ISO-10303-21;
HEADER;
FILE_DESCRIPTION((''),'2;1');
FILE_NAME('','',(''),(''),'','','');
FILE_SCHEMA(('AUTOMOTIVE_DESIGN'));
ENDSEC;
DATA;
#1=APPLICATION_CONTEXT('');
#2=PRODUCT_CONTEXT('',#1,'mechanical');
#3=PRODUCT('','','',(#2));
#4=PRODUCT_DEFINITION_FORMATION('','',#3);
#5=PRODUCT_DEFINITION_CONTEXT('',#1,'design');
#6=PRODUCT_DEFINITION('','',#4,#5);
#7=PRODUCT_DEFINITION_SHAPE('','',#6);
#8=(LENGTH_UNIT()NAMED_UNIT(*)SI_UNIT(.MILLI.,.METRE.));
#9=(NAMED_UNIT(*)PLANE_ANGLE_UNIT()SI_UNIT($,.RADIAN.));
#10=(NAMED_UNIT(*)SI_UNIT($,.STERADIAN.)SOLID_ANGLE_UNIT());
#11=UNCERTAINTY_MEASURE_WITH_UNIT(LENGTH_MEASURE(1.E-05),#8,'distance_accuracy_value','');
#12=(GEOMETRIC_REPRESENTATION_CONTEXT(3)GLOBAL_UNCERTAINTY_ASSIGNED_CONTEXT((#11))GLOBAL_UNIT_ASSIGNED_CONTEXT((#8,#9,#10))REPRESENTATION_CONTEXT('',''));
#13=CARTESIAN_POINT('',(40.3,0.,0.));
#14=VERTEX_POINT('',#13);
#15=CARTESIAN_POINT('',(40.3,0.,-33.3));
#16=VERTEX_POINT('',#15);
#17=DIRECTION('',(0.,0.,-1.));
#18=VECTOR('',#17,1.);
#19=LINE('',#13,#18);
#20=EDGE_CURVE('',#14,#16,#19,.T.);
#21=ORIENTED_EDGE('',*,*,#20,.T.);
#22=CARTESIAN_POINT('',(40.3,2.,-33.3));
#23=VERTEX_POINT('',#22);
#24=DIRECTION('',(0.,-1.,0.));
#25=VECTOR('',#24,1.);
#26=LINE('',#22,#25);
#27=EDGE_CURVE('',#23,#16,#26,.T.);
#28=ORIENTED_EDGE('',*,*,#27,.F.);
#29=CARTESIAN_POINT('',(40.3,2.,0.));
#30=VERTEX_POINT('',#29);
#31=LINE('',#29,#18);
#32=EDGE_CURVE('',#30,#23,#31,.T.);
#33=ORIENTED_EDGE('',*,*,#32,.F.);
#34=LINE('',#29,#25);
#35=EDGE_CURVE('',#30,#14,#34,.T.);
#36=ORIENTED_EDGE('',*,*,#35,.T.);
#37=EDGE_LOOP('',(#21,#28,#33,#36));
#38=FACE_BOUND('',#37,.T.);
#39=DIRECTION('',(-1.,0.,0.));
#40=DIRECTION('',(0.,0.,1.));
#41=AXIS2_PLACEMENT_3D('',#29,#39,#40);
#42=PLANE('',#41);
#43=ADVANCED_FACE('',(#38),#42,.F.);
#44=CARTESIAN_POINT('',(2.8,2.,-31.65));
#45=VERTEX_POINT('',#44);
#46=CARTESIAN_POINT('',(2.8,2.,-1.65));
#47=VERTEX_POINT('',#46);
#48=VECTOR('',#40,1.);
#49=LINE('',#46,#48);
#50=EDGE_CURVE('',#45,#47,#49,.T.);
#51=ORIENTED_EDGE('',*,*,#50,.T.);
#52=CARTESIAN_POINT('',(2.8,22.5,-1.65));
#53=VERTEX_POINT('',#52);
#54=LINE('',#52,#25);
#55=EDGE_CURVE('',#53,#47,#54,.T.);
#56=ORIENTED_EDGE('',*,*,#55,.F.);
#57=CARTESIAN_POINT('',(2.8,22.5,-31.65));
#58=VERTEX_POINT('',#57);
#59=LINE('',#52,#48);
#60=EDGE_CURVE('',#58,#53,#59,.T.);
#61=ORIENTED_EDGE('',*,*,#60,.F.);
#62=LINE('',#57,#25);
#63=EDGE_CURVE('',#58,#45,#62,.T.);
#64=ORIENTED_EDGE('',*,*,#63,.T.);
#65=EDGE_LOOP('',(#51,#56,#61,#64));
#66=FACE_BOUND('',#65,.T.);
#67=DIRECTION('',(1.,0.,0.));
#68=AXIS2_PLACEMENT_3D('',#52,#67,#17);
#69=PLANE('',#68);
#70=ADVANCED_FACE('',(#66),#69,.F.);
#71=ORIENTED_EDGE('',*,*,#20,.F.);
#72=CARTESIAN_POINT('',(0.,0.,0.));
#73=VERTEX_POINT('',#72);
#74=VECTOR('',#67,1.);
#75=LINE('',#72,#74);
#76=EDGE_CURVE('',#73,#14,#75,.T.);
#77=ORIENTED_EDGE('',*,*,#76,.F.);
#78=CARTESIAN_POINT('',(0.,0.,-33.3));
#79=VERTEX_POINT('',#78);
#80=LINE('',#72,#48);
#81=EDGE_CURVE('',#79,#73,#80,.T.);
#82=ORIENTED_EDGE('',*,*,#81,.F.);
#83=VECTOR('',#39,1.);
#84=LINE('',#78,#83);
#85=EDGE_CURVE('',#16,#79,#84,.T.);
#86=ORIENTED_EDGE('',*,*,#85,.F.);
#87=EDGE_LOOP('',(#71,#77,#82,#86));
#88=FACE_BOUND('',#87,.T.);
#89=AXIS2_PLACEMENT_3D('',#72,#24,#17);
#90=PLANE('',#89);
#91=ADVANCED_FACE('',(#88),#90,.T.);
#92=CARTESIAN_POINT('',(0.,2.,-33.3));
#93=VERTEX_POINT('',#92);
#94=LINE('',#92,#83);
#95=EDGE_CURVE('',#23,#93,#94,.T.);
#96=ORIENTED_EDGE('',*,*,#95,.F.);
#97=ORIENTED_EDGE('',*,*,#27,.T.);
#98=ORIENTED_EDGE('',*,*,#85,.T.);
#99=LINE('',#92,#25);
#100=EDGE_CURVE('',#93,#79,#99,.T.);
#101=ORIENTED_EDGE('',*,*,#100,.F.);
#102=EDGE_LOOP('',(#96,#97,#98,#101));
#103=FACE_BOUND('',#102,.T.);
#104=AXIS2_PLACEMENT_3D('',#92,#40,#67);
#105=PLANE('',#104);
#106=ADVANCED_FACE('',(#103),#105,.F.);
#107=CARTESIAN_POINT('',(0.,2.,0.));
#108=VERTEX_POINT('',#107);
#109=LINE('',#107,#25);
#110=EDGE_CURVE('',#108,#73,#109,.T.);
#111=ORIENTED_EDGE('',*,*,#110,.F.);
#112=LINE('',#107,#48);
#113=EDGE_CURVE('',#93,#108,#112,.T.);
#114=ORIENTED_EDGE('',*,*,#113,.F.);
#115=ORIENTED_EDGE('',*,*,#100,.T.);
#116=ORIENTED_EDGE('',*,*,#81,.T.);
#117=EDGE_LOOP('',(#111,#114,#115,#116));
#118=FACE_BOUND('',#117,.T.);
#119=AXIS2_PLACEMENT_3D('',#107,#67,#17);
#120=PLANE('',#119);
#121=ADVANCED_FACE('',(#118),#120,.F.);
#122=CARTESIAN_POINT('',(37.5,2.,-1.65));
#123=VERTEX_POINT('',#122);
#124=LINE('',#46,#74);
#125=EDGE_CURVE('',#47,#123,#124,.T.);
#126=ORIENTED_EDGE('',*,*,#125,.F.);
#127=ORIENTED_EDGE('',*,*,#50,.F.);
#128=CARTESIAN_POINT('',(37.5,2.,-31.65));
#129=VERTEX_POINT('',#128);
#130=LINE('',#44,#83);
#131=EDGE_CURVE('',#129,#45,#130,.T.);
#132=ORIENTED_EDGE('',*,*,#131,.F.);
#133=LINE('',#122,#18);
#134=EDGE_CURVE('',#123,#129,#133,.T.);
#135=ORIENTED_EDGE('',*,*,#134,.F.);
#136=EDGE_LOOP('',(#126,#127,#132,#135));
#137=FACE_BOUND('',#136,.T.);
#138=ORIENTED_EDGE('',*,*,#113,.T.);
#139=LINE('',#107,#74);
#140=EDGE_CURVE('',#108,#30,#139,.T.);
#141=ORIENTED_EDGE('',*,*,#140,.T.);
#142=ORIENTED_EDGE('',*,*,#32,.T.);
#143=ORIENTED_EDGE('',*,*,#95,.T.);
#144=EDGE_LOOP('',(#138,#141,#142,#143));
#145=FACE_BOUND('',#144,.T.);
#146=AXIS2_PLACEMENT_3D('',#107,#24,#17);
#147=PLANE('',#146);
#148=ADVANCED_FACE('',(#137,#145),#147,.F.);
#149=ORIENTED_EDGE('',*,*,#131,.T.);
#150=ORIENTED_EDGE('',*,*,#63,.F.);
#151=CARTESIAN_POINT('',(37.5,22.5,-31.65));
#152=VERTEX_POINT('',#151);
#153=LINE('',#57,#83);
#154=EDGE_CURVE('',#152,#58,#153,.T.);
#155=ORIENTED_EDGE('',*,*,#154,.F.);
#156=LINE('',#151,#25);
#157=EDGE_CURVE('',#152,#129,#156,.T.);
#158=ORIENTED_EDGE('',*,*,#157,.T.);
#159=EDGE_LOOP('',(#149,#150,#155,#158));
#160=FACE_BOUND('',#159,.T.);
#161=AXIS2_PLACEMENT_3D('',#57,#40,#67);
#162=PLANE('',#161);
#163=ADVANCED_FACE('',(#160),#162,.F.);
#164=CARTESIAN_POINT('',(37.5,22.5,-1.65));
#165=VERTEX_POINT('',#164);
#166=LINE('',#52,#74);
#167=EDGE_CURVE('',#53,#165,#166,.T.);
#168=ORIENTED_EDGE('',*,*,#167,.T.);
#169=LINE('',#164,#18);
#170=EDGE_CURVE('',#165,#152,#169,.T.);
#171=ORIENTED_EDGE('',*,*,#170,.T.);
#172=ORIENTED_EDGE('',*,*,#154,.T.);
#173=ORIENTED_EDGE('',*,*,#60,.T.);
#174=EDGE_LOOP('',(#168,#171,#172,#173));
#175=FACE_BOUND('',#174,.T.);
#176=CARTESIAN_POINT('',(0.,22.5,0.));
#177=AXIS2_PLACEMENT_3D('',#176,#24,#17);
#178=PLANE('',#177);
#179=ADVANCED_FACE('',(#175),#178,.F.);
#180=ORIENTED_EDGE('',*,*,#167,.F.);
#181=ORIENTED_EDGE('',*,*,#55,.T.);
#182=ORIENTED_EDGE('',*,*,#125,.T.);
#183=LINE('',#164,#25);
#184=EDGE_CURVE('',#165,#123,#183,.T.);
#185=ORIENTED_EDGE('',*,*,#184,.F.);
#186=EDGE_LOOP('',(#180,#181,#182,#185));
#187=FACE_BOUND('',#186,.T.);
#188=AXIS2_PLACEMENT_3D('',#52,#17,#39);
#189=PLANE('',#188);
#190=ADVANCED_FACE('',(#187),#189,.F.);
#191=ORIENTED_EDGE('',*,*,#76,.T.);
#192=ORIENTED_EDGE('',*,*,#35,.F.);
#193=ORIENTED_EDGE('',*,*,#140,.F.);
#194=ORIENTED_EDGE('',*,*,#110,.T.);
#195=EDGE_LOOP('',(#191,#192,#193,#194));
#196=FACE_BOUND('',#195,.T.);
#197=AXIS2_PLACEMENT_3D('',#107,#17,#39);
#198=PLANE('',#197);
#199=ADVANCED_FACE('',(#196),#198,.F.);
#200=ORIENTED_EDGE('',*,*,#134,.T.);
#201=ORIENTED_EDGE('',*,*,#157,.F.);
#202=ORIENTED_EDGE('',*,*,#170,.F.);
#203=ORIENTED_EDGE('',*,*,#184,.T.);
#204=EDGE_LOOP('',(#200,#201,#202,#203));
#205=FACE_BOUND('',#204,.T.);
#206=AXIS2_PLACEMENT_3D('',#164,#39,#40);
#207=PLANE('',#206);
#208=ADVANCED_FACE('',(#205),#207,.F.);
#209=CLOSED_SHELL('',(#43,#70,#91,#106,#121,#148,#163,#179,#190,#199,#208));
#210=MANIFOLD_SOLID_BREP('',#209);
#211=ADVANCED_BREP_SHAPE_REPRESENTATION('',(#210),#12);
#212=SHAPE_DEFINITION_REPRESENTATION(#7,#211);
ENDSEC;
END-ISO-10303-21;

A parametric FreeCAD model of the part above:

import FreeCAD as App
import Part
import Sketcher


def add_polygon(sketch, points):
    """Adds a closed chain of lines whose ends are joined by coincident constraints."""
    first, n = sketch.GeometryCount, len(points)
    for a, b in zip(points, points[1:] + points[:1]):
        sketch.addGeometry(Part.LineSegment(App.Vector(*a, 0), App.Vector(*b, 0)), False)
    for i in range(n):
        sketch.addConstraint(Sketcher.Constraint("Coincident", first + i, 2, first + (i + 1) % n, 1))

doc = App.newDocument("Part")
body = doc.addObject("PartDesign::Body", "Body")

# Sketch on XZ plane
sketch1 = body.newObject("Sketcher::SketchObject", "Sketch")
sketch1.AttachmentSupport = (doc.getObject("XZ_Plane"), [""])
sketch1.MapMode = "FlatFace"
add_polygon(sketch1, [(0, -33.3), (0, 0), (40.3, 0), (40.3, -33.3)])  # lines 0-3
sketch1.addConstraint([
    Sketcher.Constraint("Vertical", 0),
    Sketcher.Constraint("Horizontal", 1),
    Sketcher.Constraint("Vertical", 2),
    Sketcher.Constraint("Horizontal", 3),
    Sketcher.Constraint("Coincident", 0, 2, -1, 1),
    Sketcher.Constraint("DistanceX", 1, 1, 1, 2, 40.3),
    Sketcher.Constraint("DistanceY", 0, 1, 0, 2, 33.3),
])
pad1 = body.newObject("PartDesign::Pad", "Pad")
pad1.Profile = sketch1
pad1.Length = 2
pad1.Reversed = True

# Sketch on XZ plane
sketch2 = body.newObject("Sketcher::SketchObject", "Sketch001")
sketch2.AttachmentSupport = (doc.getObject("XZ_Plane"), [""])
sketch2.MapMode = "FlatFace"
sketch2.AttachmentOffset = App.Placement(App.Vector(0, 0, -2), App.Rotation())
add_polygon(sketch2, [(2.8, -31.65), (2.8, -1.65), (37.5, -1.65), (37.5, -31.65)])  # lines 0-3
sketch2.addConstraint([
    Sketcher.Constraint("Vertical", 0),
    Sketcher.Constraint("Horizontal", 1),
    Sketcher.Constraint("Vertical", 2),
    Sketcher.Constraint("Horizontal", 3),
    Sketcher.Constraint("DistanceY", 0, 1, 0, 2, 30.0),
    Sketcher.Constraint("DistanceX", 1, 1, 1, 2, 34.7),
    Sketcher.Constraint("DistanceX", -1, 1, 0, 2, 2.8),
    Sketcher.Constraint("DistanceY", 0, 2, -1, 1, 1.65),
])
pad2 = body.newObject("PartDesign::Pad", "Pad001")
pad2.Profile = sketch2
pad2.Length = 20.5
pad2.Reversed = True

doc.recompute()
